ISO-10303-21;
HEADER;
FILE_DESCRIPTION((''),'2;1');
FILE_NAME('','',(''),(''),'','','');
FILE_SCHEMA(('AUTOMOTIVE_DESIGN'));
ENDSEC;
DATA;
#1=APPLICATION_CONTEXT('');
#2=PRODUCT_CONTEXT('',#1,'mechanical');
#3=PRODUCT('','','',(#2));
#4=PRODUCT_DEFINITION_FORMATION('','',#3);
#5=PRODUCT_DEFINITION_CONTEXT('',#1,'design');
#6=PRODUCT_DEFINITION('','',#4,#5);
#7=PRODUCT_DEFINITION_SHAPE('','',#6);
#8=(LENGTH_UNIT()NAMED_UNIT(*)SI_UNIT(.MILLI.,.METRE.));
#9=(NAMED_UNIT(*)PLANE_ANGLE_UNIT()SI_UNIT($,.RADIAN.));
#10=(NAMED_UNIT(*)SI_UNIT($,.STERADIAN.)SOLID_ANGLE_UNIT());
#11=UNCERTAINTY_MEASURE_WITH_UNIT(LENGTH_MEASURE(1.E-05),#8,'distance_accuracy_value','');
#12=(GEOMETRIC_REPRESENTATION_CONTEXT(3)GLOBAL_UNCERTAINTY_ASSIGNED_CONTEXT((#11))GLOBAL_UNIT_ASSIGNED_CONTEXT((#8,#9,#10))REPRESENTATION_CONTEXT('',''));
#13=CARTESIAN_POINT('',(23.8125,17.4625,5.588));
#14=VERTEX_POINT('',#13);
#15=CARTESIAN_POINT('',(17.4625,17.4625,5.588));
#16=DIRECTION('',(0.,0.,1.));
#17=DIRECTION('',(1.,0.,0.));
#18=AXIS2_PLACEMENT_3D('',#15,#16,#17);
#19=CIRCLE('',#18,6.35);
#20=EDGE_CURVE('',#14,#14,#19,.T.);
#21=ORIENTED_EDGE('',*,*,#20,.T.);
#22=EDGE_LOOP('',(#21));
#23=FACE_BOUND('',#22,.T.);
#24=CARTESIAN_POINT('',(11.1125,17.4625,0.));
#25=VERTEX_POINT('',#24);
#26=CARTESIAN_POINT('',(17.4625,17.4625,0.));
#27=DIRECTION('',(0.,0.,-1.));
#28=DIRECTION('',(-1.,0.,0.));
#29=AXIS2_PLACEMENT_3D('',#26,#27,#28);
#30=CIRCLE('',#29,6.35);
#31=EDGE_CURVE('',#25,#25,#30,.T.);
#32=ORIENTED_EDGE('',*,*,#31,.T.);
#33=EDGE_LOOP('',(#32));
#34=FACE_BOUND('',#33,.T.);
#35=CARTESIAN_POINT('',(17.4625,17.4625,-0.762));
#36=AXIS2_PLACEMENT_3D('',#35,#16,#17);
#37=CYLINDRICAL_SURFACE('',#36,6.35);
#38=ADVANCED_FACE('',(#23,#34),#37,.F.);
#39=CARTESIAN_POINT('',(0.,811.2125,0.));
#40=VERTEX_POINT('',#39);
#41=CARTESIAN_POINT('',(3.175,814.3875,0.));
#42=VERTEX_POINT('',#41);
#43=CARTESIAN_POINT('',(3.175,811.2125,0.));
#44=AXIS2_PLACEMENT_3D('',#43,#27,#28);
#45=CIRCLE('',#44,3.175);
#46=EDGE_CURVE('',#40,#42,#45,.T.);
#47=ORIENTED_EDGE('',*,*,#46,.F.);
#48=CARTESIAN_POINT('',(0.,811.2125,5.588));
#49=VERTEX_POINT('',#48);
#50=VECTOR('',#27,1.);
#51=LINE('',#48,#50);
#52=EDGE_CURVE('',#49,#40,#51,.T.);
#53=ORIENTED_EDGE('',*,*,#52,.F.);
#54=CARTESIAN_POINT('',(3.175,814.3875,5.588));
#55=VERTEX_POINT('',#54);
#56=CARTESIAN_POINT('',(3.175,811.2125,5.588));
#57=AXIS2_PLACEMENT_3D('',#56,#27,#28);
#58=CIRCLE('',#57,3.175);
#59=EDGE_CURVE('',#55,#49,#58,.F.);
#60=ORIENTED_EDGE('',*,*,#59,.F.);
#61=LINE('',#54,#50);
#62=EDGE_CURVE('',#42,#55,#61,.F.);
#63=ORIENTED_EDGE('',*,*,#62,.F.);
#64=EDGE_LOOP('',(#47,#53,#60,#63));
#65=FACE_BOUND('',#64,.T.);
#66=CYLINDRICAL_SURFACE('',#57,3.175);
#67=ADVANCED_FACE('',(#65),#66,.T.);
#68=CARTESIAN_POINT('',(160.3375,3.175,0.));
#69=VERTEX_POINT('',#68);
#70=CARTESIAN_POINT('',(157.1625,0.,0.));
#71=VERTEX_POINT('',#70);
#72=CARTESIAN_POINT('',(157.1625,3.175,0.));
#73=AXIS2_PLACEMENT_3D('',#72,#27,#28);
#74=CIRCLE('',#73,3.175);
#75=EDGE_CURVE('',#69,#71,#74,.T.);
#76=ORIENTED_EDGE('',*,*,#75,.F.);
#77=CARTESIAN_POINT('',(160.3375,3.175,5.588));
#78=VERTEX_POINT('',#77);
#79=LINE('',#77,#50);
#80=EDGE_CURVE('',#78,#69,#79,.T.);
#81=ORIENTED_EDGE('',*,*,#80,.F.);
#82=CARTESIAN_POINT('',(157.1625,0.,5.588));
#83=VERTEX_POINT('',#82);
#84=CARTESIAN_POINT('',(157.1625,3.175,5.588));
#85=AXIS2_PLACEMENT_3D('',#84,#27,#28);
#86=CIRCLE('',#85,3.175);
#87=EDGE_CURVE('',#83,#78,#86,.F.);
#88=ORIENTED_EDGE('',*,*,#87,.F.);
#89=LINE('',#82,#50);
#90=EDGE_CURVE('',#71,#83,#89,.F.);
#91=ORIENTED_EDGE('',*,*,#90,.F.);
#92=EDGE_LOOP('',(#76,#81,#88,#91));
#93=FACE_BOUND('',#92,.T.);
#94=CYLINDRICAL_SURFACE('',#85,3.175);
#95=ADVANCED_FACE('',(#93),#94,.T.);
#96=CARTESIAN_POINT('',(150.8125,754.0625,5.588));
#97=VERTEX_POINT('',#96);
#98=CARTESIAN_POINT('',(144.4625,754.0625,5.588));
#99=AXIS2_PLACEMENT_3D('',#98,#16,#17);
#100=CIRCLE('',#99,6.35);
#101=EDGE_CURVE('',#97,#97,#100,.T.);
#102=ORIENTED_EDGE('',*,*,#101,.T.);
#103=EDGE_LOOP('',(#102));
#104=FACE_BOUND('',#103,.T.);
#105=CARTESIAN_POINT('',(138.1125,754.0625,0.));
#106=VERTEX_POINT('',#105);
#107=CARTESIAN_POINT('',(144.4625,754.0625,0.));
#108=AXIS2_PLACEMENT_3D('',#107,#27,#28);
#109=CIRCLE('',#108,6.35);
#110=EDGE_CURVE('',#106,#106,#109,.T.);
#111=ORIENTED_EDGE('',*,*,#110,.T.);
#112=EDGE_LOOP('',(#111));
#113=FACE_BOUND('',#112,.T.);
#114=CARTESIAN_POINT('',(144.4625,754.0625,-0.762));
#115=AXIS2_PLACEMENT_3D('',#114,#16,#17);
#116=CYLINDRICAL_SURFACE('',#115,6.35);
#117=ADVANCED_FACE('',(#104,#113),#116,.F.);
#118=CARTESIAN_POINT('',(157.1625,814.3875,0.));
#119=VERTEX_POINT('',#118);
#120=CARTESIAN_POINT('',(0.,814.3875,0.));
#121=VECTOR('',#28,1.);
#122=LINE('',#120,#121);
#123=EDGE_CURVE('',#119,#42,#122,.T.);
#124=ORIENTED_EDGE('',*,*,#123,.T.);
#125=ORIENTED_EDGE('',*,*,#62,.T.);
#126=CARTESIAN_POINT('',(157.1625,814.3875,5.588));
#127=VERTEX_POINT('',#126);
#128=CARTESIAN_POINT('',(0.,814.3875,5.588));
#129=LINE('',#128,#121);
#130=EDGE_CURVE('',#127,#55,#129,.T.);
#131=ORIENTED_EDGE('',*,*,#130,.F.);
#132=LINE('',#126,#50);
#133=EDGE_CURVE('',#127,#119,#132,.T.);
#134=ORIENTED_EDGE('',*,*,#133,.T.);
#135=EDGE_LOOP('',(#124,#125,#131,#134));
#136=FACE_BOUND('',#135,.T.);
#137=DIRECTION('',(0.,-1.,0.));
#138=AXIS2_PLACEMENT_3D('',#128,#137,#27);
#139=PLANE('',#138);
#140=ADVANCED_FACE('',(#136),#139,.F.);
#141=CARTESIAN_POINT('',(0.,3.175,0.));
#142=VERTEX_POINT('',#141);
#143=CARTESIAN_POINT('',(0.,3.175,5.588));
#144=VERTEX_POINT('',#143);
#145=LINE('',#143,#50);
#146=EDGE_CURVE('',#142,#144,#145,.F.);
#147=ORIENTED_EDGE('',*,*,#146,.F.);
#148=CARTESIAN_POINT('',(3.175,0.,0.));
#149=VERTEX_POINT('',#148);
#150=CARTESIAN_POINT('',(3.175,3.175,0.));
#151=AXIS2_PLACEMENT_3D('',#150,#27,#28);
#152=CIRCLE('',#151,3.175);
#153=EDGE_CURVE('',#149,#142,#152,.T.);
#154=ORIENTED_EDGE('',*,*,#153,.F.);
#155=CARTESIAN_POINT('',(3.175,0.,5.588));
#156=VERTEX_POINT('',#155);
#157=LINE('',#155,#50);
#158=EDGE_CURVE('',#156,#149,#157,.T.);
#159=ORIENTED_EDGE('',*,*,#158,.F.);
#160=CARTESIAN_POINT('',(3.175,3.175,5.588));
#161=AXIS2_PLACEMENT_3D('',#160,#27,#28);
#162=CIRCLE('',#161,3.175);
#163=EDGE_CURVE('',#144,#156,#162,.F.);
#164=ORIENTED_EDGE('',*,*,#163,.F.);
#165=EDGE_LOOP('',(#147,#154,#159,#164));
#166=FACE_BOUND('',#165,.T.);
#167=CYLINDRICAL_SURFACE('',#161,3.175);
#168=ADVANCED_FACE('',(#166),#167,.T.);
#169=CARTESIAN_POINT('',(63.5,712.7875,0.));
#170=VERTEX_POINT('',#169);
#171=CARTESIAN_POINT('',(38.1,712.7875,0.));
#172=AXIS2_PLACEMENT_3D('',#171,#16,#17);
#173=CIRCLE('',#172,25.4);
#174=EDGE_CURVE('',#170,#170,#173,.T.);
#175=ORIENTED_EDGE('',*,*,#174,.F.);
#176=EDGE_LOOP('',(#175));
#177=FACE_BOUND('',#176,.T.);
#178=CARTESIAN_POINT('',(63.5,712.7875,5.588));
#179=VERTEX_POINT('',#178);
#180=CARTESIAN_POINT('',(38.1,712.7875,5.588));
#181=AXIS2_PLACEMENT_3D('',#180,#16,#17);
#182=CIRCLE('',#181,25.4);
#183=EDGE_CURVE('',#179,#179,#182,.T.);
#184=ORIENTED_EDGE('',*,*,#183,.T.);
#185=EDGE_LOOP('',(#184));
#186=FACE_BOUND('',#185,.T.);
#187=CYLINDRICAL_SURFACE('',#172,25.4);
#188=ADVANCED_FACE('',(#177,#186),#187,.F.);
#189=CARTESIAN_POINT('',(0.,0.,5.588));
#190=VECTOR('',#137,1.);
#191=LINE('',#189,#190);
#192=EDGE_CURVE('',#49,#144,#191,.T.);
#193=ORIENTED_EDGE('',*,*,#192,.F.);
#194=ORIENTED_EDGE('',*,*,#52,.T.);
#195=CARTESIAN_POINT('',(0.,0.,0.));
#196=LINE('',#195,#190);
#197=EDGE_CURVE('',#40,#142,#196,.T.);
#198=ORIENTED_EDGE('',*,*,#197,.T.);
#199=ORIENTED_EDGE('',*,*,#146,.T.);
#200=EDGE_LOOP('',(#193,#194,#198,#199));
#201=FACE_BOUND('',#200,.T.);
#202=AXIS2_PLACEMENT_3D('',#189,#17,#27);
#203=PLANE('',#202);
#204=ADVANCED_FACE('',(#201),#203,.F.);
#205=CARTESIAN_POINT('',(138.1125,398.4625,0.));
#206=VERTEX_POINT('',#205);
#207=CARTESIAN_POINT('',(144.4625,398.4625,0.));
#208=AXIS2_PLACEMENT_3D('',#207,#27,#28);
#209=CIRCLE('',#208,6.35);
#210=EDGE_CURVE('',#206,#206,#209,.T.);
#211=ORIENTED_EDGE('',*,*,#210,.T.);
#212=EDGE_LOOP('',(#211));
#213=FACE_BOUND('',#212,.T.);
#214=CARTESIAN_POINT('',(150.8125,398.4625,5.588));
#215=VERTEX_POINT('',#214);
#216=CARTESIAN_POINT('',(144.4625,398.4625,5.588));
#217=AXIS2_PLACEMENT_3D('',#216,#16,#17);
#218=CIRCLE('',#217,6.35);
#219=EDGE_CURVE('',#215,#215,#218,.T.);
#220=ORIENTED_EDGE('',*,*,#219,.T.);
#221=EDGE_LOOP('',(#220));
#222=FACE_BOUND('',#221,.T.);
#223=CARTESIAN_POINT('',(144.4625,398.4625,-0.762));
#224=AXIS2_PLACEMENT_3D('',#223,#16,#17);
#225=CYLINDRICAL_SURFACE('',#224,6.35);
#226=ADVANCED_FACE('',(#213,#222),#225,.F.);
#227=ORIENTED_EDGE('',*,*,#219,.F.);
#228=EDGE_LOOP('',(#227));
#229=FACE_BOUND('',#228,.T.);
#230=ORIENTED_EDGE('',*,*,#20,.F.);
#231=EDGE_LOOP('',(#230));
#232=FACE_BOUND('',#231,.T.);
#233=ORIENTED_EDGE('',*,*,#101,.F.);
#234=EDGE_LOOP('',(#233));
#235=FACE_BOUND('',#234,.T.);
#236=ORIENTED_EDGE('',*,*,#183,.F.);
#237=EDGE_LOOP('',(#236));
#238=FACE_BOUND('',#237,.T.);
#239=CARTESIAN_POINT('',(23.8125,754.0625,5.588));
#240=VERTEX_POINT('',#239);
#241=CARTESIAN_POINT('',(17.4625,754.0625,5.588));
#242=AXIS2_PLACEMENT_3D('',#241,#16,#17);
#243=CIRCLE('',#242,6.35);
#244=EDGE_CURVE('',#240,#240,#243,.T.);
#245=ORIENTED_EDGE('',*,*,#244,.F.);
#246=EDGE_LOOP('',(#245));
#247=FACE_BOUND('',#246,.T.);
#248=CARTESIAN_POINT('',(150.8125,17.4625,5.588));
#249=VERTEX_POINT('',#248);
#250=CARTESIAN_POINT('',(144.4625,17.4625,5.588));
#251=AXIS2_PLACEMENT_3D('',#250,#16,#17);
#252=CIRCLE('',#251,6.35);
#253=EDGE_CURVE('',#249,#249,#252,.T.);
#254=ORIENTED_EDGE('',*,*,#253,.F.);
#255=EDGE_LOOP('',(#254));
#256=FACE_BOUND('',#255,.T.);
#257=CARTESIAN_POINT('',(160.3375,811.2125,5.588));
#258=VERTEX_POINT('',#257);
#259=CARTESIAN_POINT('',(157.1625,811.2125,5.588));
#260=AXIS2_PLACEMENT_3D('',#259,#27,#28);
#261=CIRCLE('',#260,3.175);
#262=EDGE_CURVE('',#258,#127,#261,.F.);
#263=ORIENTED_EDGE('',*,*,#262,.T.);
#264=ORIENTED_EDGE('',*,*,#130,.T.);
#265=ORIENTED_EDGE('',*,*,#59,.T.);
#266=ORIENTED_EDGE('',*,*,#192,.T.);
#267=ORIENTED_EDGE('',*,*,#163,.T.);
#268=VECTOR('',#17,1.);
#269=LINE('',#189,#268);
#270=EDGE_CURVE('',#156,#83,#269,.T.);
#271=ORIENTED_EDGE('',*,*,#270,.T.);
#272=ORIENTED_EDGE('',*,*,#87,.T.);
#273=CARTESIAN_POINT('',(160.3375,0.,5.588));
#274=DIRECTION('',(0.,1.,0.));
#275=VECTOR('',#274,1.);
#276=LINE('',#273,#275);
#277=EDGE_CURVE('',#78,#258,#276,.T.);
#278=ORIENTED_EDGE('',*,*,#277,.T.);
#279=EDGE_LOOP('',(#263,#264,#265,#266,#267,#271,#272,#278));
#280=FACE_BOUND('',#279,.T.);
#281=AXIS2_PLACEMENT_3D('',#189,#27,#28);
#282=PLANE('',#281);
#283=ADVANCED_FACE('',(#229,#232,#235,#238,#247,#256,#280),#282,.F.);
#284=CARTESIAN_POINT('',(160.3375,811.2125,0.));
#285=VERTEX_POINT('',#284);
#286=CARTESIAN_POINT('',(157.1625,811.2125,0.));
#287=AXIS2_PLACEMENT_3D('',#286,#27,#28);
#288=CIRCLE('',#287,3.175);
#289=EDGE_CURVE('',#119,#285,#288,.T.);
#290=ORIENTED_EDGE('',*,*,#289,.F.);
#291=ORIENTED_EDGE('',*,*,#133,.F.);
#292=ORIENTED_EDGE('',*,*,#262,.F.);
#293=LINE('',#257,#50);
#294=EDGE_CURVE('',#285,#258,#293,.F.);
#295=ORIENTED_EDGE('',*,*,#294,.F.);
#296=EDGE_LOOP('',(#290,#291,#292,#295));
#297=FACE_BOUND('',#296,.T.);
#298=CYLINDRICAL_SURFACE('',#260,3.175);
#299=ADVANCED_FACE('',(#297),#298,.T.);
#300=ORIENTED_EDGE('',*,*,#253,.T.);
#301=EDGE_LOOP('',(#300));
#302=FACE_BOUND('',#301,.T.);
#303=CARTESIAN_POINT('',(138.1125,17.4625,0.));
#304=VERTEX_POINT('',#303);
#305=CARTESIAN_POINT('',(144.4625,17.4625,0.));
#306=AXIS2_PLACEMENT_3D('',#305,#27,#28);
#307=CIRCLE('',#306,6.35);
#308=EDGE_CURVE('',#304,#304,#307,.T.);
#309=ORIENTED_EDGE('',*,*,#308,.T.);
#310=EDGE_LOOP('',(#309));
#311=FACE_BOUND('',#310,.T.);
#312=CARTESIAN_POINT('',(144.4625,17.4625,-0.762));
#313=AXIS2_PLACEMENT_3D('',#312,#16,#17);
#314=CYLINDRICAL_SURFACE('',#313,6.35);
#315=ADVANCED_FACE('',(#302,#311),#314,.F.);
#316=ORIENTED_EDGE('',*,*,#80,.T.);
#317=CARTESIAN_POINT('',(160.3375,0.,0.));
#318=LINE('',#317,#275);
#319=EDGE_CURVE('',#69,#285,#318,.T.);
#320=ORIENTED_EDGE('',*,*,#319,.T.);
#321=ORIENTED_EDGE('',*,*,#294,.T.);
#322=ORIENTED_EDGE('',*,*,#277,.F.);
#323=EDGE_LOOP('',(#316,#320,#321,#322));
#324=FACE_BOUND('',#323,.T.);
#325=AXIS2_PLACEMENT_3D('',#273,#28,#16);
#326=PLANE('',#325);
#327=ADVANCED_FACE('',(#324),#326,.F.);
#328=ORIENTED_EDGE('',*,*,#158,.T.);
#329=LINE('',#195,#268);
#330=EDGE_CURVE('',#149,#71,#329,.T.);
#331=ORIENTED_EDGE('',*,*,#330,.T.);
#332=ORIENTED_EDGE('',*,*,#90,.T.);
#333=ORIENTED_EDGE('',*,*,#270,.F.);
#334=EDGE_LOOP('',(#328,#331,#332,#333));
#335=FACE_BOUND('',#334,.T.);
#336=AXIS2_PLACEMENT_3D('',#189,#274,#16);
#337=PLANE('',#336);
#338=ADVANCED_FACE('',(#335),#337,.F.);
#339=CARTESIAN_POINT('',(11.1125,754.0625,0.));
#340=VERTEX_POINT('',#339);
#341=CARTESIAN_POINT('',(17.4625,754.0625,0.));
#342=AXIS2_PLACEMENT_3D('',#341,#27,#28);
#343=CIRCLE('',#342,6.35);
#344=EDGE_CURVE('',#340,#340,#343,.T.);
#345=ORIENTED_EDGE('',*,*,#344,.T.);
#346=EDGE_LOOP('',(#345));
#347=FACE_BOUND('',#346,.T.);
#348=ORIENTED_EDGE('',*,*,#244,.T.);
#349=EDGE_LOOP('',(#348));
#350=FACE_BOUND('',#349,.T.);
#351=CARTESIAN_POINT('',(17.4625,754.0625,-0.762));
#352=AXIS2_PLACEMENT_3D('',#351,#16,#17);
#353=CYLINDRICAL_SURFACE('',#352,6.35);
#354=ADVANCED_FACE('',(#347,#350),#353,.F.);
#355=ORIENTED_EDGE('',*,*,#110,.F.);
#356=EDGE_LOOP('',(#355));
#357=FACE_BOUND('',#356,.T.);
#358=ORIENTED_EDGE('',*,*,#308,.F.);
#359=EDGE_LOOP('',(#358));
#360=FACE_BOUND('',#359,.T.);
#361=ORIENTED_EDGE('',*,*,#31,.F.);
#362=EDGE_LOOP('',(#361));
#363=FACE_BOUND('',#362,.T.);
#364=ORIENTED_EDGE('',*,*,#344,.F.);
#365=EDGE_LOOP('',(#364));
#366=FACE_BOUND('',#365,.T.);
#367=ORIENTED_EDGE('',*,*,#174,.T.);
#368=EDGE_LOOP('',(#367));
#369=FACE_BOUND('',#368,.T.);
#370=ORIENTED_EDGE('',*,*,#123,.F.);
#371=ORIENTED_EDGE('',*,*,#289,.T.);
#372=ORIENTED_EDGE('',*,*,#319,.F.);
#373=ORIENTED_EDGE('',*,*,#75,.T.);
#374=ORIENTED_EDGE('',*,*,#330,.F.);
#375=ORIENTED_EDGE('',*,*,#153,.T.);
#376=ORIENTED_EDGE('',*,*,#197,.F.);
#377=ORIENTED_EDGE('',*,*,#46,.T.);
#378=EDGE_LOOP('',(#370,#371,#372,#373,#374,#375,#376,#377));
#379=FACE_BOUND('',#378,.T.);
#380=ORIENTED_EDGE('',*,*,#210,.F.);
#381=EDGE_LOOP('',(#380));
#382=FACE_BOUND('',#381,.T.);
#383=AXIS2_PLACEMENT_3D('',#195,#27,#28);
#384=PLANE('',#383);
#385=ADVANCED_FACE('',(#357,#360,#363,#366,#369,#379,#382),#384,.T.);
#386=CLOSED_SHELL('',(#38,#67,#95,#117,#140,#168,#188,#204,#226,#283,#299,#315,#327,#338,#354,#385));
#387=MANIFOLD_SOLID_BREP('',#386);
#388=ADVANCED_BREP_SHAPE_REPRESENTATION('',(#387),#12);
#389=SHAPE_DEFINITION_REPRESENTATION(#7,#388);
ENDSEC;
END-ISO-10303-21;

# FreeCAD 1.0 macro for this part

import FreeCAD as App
import Part
import Sketcher
Q = App.Units.Quantity


def edges_at(feature, points):
    """Names of the edges that pass closest to the given points."""
    edges = feature.Shape.Edges
    near = lambda p: min(range(len(edges)), key=lambda i: edges[i].distToShape(Part.Vertex(*p))[0])
    return sorted({f"Edge{near(p) + 1}" for p in points})


def add_polygon(sketch, points):
    """Adds a closed chain of lines whose ends are joined by coincident constraints."""
    first, n = sketch.GeometryCount, len(points)
    for a, b in zip(points, points[1:] + points[:1]):
        sketch.addGeometry(Part.LineSegment(App.Vector(*a, 0), App.Vector(*b, 0)), False)
    for i in range(n):
        sketch.addConstraint(Sketcher.Constraint("Coincident", first + i, 2, first + (i + 1) % n, 1))

doc = App.newDocument("Part")
params = doc.addObject("Spreadsheet::Sheet", "Params")
for row, (alias, value) in enumerate([
    ("sketch1_width", "6.3125 in"),
    ("sketch1_height", "32.0625 in"),
    ("pad1_length", "0.22 in"),
    ("fillet_radius", "0.125 in"),
    ("sketch2_diameter", "0.5 in"),
    ("pocket1_length", "0.25 in"),
    ("sketch3_diameter", "2 in"),
], start=1):
    params.set(f"A{row}", alias)
    params.set(f"B{row}", "=" + value)
    params.setAlias(f"B{row}", alias)

body = doc.addObject("PartDesign::Body", "Body")

sketch1 = body.newObject("Sketcher::SketchObject", "Sketch")
sketch1.AttachmentSupport = (doc.getObject("XY_Plane"), [""])
sketch1.MapMode = "FlatFace"
add_polygon(sketch1, [(0, 814), (0, 0), (160, 0), (160, 814)])
sketch1.addConstraint(Sketcher.Constraint("Vertical", 0))
sketch1.addConstraint(Sketcher.Constraint("Horizontal", 1))
sketch1.addConstraint(Sketcher.Constraint("Vertical", 2))
sketch1.addConstraint(Sketcher.Constraint("Horizontal", 3))
sketch1.addConstraint(Sketcher.Constraint("Coincident", 0, 2, -1, 1))
sketch1.addConstraint(Sketcher.Constraint("DistanceX", 1, 1, 1, 2, Q("6.3125 in")))
sketch1.addConstraint(Sketcher.Constraint("DistanceY", 0, 2, 0, 1, Q("32.0625 in")))
sketch1.setExpression("Constraints[9]", "Params.sketch1_width")
sketch1.setExpression("Constraints[10]", "Params.sketch1_height")
pad1 = body.newObject("PartDesign::Pad", "Pad")
pad1.Profile = sketch1
pad1.setExpression("Length", "Params.pad1_length")
doc.recompute()

fillet = body.newObject("PartDesign::Fillet", "Fillet")
fillet.Base = (pad1, edges_at(pad1, [
    (0, 814.388, 2.794),
    (160.338, 814.388, 2.794),
    (160.338, 0, 2.794),
    (0, 0, 2.794),
]))
fillet.setExpression("Radius", "Params.fillet_radius")

sketch2 = body.newObject("Sketcher::SketchObject", "Sketch001")
sketch2.AttachmentSupport = (doc.getObject("XY_Plane"), [""])
sketch2.MapMode = "FlatFace"
sketch2.AttachmentOffset = App.Placement(App.Vector(0, 0, 0.22 * 25.4), App.Rotation())
sketch2.addGeometry(Part.Circle(App.Vector(17, 754, 0), App.Vector(0, 0, 1), 6), False)
sketch2.addGeometry(Part.Circle(App.Vector(144, 754, 0), App.Vector(0, 0, 1), 6), False)
sketch2.addGeometry(Part.Circle(App.Vector(17, 17, 0), App.Vector(0, 0, 1), 6), False)
sketch2.addGeometry(Part.Circle(App.Vector(144, 17, 0), App.Vector(0, 0, 1), 6), False)
sketch2.addGeometry(Part.Circle(App.Vector(144, 398, 0), App.Vector(0, 0, 1), 6), False)
sketch2.addConstraint(Sketcher.Constraint("Equal", 0, 1))
sketch2.addConstraint(Sketcher.Constraint("Equal", 1, 2))
sketch2.addConstraint(Sketcher.Constraint("Equal", 2, 3))
sketch2.addConstraint(Sketcher.Constraint("Equal", 3, 4))
sketch2.addConstraint(Sketcher.Constraint("Horizontal", 0, 3, 1, 3))
sketch2.addConstraint(Sketcher.Constraint("Horizontal", 2, 3, 3, 3))
sketch2.addConstraint(Sketcher.Constraint("Vertical", 0, 3, 2, 3))
sketch2.addConstraint(Sketcher.Constraint("Vertical", 1, 3, 3, 3))
sketch2.addConstraint(Sketcher.Constraint("Vertical", 3, 3, 4, 3))
sketch2.addConstraint(Sketcher.Constraint("Diameter", 0, Q("0.5 in")))
sketch2.addConstraint(Sketcher.Constraint("DistanceX", 0, 3, 1, 3, Q("5 in")))
sketch2.addConstraint(Sketcher.Constraint("DistanceY", 2, 3, 0, 3, Q("29 in")))
sketch2.addConstraint(Sketcher.Constraint("DistanceY", 4, 3, 1, 3, Q("14 in")))
sketch2.addConstraint(Sketcher.Constraint("DistanceX", -1, 1, 0, 3, Q("0.6875 in")))
sketch2.addConstraint(Sketcher.Constraint("DistanceY", -1, 1, 0, 3, Q("29.6875 in")))
sketch2.setExpression("Constraints[9]", "Params.sketch2_diameter")
pocket1 = body.newObject("PartDesign::Pocket", "Pocket")
pocket1.Profile = sketch2
pocket1.setExpression("Length", "Params.pocket1_length")

sketch3 = body.newObject("Sketcher::SketchObject", "Sketch002")
sketch3.AttachmentSupport = (doc.getObject("XY_Plane"), [""])
sketch3.MapMode = "FlatFace"
sketch3.AttachmentOffset = App.Placement(App.Vector(0, 0, 0.22 * 25.4), App.Rotation())
sketch3.addGeometry(Part.Circle(App.Vector(38, 713, 0), App.Vector(0, 0, 1), 25), False)
sketch3.addConstraint(Sketcher.Constraint("Diameter", 0, Q("2 in")))
sketch3.addConstraint(Sketcher.Constraint("DistanceX", -1, 1, 0, 3, Q("1.5 in")))
sketch3.addConstraint(Sketcher.Constraint("DistanceY", -1, 1, 0, 3, Q("28.0625 in")))
sketch3.setExpression("Constraints[0]", "Params.sketch3_diameter")
pocket2 = body.newObject("PartDesign::Pocket", "Pocket001")
pocket2.Profile = sketch3
pocket2.Type = "ThroughAll"

doc.recompute()
